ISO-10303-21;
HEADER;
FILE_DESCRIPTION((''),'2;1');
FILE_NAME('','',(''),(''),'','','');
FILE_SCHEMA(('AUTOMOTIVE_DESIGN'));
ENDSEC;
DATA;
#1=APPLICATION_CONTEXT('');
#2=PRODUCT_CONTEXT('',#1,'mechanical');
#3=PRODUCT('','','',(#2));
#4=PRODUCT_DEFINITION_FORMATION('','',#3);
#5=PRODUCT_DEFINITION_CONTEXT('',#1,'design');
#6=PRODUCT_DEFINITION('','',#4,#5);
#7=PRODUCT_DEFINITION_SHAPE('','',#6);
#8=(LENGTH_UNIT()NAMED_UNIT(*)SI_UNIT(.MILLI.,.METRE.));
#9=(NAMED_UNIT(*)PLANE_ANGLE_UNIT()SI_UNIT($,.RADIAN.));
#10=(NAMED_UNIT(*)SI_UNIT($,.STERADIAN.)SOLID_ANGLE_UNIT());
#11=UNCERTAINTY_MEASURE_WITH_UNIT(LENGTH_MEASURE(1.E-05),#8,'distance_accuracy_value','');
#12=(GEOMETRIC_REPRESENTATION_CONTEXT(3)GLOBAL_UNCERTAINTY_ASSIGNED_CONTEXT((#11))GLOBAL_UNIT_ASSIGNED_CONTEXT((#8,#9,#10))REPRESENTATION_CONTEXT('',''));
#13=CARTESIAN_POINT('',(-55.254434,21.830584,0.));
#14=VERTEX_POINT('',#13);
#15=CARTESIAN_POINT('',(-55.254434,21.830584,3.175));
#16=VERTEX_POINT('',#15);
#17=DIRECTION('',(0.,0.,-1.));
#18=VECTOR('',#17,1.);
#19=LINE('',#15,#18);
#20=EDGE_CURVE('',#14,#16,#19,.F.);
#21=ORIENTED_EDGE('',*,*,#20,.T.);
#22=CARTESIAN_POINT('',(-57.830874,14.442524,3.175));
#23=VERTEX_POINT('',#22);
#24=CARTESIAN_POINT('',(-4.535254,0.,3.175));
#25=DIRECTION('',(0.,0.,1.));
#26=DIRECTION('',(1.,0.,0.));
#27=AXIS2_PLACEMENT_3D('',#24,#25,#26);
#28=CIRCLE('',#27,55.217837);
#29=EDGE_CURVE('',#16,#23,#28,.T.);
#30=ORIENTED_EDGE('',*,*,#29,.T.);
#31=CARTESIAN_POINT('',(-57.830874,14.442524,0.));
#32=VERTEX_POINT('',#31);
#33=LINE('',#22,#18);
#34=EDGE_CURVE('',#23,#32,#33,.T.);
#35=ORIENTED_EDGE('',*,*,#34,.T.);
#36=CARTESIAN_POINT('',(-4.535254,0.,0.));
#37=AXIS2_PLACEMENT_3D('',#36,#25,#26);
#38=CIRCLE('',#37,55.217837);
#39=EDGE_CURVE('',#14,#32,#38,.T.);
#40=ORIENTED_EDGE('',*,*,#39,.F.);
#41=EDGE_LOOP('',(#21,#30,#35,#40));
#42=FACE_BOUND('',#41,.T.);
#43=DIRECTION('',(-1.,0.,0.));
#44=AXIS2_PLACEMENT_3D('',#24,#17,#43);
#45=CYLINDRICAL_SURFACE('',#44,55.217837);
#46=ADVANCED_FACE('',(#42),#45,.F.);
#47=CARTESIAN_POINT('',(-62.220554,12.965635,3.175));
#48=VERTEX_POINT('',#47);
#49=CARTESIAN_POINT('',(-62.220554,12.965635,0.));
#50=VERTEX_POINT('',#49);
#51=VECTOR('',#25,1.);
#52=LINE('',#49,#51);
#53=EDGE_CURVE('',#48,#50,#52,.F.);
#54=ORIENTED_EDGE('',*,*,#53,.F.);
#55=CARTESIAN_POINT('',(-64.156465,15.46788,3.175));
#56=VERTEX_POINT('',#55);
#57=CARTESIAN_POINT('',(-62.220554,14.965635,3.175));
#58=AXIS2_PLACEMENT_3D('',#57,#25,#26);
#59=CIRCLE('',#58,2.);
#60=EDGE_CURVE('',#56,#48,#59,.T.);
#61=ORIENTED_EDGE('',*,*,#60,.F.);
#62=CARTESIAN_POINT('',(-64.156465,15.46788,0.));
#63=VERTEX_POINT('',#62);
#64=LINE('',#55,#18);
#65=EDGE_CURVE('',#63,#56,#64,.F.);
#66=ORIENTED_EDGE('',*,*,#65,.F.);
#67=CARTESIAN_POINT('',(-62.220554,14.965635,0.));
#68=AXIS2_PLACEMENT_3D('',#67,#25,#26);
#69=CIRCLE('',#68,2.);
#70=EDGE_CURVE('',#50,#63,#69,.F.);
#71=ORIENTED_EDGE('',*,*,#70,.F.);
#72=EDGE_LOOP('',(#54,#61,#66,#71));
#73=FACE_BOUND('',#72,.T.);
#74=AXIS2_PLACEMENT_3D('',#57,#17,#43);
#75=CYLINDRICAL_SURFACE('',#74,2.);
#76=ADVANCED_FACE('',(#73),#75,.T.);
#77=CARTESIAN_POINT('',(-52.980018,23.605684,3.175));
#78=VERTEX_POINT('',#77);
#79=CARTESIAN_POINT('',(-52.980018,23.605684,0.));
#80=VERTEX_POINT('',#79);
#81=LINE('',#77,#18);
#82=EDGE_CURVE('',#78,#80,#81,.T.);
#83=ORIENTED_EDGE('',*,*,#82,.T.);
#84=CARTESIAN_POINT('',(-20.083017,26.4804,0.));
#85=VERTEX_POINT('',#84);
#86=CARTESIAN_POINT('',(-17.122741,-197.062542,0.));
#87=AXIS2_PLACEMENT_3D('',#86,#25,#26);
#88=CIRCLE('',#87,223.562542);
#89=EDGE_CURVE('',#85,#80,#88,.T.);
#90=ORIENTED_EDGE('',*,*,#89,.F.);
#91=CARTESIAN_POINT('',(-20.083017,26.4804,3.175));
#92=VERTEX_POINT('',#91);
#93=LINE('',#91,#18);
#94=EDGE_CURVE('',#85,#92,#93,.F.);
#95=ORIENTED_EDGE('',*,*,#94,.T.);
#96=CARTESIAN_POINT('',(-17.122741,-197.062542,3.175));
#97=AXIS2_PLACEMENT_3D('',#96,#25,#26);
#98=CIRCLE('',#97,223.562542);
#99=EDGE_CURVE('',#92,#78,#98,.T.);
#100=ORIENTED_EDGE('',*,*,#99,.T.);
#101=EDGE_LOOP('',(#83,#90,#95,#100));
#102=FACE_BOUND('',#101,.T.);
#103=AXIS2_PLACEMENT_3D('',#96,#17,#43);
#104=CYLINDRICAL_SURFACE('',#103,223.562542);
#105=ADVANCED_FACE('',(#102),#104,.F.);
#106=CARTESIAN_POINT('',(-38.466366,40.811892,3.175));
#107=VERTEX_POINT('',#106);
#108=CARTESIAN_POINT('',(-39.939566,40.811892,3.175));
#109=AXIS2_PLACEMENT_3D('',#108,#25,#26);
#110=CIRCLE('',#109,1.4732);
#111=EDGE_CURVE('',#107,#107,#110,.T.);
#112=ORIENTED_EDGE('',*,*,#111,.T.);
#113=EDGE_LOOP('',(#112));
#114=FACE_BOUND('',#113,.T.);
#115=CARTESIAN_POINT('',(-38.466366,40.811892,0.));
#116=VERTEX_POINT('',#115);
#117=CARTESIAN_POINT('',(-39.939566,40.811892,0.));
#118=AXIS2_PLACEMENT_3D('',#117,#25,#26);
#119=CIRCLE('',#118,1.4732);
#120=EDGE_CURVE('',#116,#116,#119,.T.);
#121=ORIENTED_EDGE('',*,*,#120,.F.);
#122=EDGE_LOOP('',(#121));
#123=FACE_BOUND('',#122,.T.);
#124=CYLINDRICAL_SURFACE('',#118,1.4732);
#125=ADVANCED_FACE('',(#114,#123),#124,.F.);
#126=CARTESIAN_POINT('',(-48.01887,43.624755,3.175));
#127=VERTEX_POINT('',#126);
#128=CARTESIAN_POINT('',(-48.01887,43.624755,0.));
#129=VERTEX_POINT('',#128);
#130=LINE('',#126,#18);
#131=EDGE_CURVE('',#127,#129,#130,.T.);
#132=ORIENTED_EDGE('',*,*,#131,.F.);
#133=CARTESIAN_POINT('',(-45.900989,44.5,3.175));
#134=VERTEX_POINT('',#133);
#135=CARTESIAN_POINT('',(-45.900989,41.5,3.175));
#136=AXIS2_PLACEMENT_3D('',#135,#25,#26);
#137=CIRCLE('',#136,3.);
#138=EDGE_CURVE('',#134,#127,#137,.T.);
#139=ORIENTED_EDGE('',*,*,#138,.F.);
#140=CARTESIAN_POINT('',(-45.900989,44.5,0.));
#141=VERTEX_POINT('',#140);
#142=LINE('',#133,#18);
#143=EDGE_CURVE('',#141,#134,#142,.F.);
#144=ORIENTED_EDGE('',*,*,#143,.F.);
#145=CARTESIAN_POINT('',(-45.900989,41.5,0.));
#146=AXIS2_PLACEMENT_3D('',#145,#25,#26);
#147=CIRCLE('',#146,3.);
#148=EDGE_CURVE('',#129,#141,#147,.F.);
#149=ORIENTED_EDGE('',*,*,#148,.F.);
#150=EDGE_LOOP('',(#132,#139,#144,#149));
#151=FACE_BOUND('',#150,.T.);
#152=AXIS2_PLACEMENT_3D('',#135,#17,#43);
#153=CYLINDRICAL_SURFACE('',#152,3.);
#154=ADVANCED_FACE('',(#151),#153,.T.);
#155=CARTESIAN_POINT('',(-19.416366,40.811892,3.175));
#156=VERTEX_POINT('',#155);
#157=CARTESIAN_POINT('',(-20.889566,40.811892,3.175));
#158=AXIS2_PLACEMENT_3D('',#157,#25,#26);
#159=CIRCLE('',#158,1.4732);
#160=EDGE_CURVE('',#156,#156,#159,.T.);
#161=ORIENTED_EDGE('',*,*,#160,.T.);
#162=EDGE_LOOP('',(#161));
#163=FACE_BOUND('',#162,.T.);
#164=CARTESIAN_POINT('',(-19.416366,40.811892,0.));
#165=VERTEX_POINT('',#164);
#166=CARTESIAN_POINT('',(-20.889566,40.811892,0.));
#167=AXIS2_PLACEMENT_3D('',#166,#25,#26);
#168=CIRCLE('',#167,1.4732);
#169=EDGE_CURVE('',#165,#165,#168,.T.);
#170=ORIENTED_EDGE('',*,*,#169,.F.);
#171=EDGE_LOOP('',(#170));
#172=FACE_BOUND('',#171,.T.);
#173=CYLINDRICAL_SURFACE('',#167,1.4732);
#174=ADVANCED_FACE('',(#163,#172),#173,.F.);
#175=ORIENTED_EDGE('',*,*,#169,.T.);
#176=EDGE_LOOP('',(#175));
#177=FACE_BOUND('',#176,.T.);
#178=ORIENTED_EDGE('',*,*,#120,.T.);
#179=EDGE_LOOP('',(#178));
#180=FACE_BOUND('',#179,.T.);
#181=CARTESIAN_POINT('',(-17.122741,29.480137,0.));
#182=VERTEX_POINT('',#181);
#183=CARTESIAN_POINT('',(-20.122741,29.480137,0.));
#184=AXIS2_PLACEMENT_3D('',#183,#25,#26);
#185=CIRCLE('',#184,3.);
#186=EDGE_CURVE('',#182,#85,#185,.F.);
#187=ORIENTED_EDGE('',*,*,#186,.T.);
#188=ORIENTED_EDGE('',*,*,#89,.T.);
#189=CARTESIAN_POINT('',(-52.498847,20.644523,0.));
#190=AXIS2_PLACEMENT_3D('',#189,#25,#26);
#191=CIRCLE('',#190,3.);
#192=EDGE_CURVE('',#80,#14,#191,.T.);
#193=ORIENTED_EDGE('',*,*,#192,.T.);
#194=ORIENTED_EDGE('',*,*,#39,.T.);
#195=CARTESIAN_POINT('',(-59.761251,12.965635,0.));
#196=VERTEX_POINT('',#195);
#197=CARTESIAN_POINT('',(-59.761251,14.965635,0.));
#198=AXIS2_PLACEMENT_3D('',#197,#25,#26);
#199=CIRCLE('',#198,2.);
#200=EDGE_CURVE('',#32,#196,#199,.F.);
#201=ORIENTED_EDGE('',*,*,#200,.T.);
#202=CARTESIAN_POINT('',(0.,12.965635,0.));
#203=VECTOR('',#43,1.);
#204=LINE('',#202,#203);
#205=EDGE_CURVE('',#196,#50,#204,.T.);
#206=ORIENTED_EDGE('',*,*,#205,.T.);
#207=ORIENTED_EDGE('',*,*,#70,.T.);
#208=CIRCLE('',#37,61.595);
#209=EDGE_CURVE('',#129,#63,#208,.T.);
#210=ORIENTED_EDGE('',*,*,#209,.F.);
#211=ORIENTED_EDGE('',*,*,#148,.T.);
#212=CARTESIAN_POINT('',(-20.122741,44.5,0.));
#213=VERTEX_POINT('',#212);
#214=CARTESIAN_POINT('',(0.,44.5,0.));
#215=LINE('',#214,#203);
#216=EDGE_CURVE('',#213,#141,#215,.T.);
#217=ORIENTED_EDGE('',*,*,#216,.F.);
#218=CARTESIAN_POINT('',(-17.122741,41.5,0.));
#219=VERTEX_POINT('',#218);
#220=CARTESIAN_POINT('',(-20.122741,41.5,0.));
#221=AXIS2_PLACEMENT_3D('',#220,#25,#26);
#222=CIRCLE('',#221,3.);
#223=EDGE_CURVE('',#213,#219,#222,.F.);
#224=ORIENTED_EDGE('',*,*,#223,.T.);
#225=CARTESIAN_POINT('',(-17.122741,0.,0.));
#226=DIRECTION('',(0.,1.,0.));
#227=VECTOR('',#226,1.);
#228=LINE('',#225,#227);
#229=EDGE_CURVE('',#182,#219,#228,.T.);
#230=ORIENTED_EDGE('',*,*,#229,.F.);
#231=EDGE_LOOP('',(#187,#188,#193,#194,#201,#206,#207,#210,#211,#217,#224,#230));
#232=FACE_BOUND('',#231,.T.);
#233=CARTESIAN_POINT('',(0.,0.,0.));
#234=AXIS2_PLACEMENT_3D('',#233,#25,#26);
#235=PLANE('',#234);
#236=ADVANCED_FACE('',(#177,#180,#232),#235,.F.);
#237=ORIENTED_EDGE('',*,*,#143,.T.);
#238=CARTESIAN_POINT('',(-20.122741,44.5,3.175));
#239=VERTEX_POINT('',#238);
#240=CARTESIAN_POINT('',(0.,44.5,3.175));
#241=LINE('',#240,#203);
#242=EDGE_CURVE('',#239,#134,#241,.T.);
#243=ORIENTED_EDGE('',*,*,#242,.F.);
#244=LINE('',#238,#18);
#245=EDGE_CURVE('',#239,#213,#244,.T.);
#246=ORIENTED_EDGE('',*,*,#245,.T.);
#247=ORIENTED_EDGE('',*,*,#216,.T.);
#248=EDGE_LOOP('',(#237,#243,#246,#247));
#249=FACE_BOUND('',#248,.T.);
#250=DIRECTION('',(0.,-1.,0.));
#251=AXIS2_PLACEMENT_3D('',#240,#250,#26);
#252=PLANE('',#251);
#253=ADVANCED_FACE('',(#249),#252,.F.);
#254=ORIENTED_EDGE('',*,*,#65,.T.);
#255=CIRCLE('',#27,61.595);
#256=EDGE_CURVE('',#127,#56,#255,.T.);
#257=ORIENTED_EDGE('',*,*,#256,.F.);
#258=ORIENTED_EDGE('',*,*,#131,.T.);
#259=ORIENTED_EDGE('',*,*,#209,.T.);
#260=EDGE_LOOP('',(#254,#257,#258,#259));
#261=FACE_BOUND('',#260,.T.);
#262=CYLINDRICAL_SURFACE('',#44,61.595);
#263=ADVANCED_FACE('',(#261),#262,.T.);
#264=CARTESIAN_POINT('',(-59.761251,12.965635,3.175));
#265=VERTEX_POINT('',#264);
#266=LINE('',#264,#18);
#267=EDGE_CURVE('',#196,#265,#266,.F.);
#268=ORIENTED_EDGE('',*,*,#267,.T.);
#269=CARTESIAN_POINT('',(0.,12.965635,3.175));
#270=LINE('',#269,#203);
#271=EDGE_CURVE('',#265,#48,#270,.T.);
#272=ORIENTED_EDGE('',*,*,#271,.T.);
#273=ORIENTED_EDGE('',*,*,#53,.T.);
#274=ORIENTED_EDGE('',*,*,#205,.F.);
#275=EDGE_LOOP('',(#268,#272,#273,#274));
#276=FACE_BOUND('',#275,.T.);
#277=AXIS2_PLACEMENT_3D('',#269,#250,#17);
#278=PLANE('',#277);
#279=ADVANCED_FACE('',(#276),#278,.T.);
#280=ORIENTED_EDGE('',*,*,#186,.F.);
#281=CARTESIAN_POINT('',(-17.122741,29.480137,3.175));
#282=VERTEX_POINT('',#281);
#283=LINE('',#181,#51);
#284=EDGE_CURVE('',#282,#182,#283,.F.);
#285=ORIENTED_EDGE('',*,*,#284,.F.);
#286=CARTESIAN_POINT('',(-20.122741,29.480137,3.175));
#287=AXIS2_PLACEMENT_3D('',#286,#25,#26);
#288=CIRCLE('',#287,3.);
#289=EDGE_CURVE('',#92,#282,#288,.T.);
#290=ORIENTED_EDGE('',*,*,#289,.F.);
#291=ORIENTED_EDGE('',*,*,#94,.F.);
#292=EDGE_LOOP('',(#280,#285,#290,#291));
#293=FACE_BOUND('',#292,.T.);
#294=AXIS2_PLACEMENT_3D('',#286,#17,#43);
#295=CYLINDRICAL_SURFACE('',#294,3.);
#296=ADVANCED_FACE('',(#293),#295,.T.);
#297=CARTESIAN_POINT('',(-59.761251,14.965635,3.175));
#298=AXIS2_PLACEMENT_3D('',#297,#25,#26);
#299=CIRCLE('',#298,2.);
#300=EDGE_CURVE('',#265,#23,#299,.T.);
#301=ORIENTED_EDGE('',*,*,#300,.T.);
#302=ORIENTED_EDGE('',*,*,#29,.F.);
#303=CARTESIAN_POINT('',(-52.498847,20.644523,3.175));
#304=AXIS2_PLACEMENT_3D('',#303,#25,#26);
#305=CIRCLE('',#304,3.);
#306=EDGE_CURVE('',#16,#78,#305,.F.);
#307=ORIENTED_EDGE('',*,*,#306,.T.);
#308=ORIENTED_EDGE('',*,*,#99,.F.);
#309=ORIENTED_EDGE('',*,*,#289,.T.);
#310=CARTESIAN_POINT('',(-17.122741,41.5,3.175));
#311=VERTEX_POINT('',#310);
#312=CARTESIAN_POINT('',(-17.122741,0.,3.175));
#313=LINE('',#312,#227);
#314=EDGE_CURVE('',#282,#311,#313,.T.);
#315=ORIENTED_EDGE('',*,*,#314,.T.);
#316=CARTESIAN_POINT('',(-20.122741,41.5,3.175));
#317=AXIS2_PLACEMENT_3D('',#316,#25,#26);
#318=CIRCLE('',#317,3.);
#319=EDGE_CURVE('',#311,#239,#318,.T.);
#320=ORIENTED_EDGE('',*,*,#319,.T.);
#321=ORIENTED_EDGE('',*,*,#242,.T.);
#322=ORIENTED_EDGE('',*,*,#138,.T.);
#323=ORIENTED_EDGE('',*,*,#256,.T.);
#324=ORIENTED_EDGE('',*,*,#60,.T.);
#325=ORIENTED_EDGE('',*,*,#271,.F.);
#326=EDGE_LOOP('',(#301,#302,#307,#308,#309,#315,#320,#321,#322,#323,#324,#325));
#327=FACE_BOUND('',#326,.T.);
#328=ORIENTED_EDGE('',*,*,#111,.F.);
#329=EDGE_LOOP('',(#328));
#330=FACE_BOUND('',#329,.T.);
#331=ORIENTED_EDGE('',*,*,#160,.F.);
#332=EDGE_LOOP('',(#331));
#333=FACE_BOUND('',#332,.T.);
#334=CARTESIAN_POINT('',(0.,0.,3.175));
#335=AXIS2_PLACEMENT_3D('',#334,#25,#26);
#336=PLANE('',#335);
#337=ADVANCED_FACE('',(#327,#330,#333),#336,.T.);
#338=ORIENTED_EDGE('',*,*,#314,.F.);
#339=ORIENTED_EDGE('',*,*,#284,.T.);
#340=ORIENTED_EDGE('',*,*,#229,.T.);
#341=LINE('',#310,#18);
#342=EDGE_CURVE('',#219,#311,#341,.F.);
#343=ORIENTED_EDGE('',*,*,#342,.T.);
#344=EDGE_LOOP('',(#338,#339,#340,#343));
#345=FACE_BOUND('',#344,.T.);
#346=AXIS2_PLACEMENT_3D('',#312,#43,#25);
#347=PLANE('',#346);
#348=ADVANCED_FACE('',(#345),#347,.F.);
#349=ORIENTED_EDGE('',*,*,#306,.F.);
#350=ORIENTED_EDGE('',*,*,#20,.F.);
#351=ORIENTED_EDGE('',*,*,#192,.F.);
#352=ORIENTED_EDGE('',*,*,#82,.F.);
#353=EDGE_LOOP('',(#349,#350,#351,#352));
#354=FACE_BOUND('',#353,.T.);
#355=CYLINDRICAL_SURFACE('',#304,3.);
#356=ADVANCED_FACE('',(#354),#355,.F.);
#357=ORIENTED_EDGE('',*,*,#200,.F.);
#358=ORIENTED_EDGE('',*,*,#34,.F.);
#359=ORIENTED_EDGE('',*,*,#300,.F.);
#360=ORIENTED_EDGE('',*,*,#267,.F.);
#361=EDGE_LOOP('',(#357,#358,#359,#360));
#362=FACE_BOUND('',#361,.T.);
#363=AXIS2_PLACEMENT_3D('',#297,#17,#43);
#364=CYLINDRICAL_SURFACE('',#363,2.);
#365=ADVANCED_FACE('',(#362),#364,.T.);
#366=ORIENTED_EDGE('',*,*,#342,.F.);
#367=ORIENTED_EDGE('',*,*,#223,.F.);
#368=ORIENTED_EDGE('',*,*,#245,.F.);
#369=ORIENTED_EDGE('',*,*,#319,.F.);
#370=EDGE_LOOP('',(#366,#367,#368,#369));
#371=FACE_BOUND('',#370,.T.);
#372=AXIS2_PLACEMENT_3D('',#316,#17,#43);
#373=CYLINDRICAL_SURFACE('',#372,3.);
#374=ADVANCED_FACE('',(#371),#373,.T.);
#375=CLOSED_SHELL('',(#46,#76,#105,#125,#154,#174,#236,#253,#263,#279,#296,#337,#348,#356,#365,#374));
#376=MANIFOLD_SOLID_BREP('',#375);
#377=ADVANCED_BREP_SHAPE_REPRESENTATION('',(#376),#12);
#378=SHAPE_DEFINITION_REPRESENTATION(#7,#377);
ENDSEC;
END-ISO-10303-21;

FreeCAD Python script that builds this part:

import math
import FreeCAD as App
import Part
import Sketcher

V = App.Vector
Q = App.Units.Quantity


def edges_at(feature, points):
    """Names of the edges that pass closest to the given points."""
    edges = feature.Shape.Edges
    near = lambda p: min(range(len(edges)), key=lambda i: edges[i].distToShape(Part.Vertex(*p))[0])
    return sorted({f"Edge{near(p) + 1}" for p in points})

doc = App.newDocument("Part")
body = doc.addObject("PartDesign::Body", "Body")

sketch1 = body.newObject("Sketcher::SketchObject", "Sketch")
sketch1.AttachmentSupport = (doc.getObject("XY_Plane"), [""])
sketch1.MapMode = "FlatFace"
sketch1.addGeometry(Part.LineSegment(V(-17.122741, 26.5, 0), V(-17.122741, 44.5, 0)), False)
sketch1.addGeometry(Part.LineSegment(V(-17.122741, 44.5, 0), V(-47.122741, 44.5, 0)), False)
sketch1.addGeometry(Part.ArcOfCircle(Part.Circle(V(-4.535254, 0, 0), V(0, 0, 1), 61.595), math.radians(133.741939), math.radians(167.848452)), False)
sketch1.addGeometry(Part.LineSegment(V(-64.750172, 12.965635, 0), V(-58.209288, 12.965635, 0)), False)
sketch1.addGeometry(Part.ArcOfCircle(Part.Circle(V(-4.535254, 0, 0), V(0, 0, 1), 55.217837), math.radians(154.995355), math.radians(166.419647)), False)
sketch1.addGeometry(Part.ArcOfCircle(Part.Circle(V(-17.122741, -197.062542, 0), V(0, 0, 1), 223.562542), math.radians(90), math.radians(99.64464)), False)
sketch1.addConstraint(Sketcher.Constraint("Coincident", 0, 2, 1, 1))
sketch1.addConstraint(Sketcher.Constraint("Coincident", 1, 2, 2, 1))
sketch1.addConstraint(Sketcher.Constraint("Coincident", 2, 2, 3, 1))
sketch1.addConstraint(Sketcher.Constraint("Coincident", 3, 2, 4, 2))
sketch1.addConstraint(Sketcher.Constraint("Coincident", 4, 1, 5, 2))
sketch1.addConstraint(Sketcher.Constraint("Coincident", 5, 1, 0, 1))
sketch1.addConstraint(Sketcher.Constraint("Vertical", 0))
sketch1.addConstraint(Sketcher.Constraint("Horizontal", 1))
sketch1.addConstraint(Sketcher.Constraint("Horizontal", 3))
sketch1.addConstraint(Sketcher.Constraint("Coincident", 4, 3, 2, 3))
sketch1.addConstraint(Sketcher.Constraint("PointOnObject", 2, 3, -1))
sketch1.addConstraint(Sketcher.Constraint("Vertical", 5, 3, 0, 2))
sketch1.addConstraint(Sketcher.Constraint("DistanceX", 1, 2, 1, 1, Q("30 mm")))
sketch1.addConstraint(Sketcher.Constraint("DistanceY", 0, 1, 0, 2, Q("18 mm")))
sketch1.addConstraint(Sketcher.Constraint("Radius", 2, Q("61.595 mm")))
sketch1.addConstraint(Sketcher.Constraint("DistanceY", -1, 1, 0, 2, Q("44.5 mm")))
sketch1.addConstraint(Sketcher.Constraint("Radius", 5, Q("223.562542 mm")))
sketch1.addConstraint(Sketcher.Constraint("Radius", 4, Q("55.217837 mm")))
sketch1.addConstraint(Sketcher.Constraint("DistanceX", 3, 1, 3, 2, Q("6.540884 mm")))
sketch1.addConstraint(Sketcher.Constraint("DistanceX", 5, 3, -1, 1, Q("17.122741 mm")))
pad1 = body.newObject("PartDesign::Pad", "Pad")
pad1.Profile = sketch1
pad1.Length = 3.175

sketch2 = body.newObject("Sketcher::SketchObject", "Sketch001")
sketch2.AttachmentSupport = (doc.getObject("XY_Plane"), [""])
sketch2.MapMode = "FlatFace"
sketch2.AttachmentOffset = App.Placement(V(0, 0, 3.175), App.Rotation())
sketch2.addGeometry(Part.Circle(V(-20.889566, 40.811892, 0), V(0, 0, 1), 1.4732), False)
sketch2.addGeometry(Part.Circle(V(-39.939566, 40.811892, 0), V(0, 0, 1), 1.4732), False)
sketch2.addConstraint(Sketcher.Constraint("Equal", 0, 1))
sketch2.addConstraint(Sketcher.Constraint("Horizontal", 0, 3, 1, 3))
sketch2.addConstraint(Sketcher.Constraint("Diameter", 0, Q("2.9464 mm")))
sketch2.addConstraint(Sketcher.Constraint("DistanceX", 1, 3, 0, 3, Q("19.05 mm")))
sketch2.addConstraint(Sketcher.Constraint("DistanceX", 0, 3, -1, 1, Q("20.889566 mm")))
sketch2.addConstraint(Sketcher.Constraint("DistanceY", -1, 1, 0, 3, Q("40.811892 mm")))
pocket1 = body.newObject("PartDesign::Pocket", "Pocket")
pocket1.Profile = sketch2
pocket1.Type = "ThroughAll"
doc.recompute()

fillet = body.newObject("PartDesign::Fillet", "Fillet")
fillet.Base = (pocket1, edges_at(pocket1, [
    (-47.123, 44.5, 1.587),
    (-17.123, 44.5, 1.587),
    (-17.123, 26.5, 1.587),
    (-54.578, 23.34, 1.587),
]))
fillet.Radius = 3
doc.recompute()

fillet2 = body.newObject("PartDesign::Fillet", "Fillet001")
fillet2.Base = (fillet, edges_at(fillet, [(-58.209, 12.966, 1.587), (-64.75, 12.966, 1.587)]))
fillet2.Radius = 2

doc.recompute()
